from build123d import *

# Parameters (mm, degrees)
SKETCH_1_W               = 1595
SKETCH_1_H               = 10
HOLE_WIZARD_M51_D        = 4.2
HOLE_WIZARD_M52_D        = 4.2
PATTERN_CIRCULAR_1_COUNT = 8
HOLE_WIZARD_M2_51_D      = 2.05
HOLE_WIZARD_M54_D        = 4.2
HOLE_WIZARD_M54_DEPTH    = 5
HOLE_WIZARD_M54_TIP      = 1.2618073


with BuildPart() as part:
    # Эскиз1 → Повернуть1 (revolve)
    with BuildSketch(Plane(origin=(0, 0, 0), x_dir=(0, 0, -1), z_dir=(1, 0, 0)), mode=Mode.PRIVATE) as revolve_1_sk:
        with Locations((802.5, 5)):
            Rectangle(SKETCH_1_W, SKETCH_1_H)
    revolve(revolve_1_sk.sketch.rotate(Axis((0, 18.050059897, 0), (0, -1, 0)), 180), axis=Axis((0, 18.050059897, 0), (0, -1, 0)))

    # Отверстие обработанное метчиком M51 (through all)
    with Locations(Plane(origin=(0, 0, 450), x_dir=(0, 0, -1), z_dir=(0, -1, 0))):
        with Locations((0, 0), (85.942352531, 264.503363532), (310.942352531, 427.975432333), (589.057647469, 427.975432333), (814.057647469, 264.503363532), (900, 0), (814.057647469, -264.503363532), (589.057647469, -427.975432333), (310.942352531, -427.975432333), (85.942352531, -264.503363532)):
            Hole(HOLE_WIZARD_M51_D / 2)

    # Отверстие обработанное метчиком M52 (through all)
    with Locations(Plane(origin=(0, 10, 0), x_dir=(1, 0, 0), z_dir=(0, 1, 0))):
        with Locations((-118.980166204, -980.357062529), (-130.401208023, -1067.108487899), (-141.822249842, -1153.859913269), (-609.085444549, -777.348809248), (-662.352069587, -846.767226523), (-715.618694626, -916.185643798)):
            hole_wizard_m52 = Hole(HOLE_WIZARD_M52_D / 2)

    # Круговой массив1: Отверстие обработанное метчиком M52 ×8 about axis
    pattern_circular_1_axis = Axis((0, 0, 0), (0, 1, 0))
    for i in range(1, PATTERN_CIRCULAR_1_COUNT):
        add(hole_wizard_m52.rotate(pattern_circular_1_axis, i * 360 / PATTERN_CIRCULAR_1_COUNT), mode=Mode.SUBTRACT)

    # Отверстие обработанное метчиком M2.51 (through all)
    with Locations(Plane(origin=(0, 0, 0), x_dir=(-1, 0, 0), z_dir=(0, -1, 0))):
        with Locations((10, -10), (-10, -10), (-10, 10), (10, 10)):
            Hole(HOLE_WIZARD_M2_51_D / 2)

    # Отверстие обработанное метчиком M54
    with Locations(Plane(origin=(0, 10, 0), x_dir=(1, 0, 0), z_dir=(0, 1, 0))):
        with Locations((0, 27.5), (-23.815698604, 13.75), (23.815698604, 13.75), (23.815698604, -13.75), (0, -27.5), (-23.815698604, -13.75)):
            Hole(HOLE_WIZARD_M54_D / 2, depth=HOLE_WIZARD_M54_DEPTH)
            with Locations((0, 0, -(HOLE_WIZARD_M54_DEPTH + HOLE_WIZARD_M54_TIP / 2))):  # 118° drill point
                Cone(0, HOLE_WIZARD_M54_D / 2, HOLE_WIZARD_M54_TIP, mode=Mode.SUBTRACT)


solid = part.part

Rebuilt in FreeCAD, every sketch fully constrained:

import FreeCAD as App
import Part
import Sketcher

V = App.Vector
Q = App.Units.Quantity


def add_polygon(sketch, points):
    """Adds a closed chain of lines whose ends are joined by coincident constraints."""
    first, n = sketch.GeometryCount, len(points)
    for a, b in zip(points, points[1:] + points[:1]):
        sketch.addGeometry(Part.LineSegment(App.Vector(*a, 0), App.Vector(*b, 0)), False)
    for i in range(n):
        sketch.addConstraint(Sketcher.Constraint("Coincident", first + i, 2, first + (i + 1) % n, 1))

doc = App.newDocument("Part")
params = doc.addObject("Spreadsheet::Sheet", "Params")
for row, (alias, value) in enumerate([
    ("sketch1_width", "10 mm"),
    ("sketch1_height", "1595 mm"),
    ("revolution_angle", "360 deg"),
    ("sketch2_diameter", "4.2 mm"),
    ("hole_diameter", "4.2 mm"),
    ("sketch3_diameter", "4.2 mm"),
    ("hole2_diameter", "4.2 mm"),
    ("sketch4_diameter", "2.05 mm"),
    ("hole3_diameter", "2.05 mm"),
    ("sketch5_diameter", "4.2 mm"),
    ("hole4_diameter", "4.2 mm"),
    ("hole4_depth", "5 mm"),
], start=1):
    params.set(f"A{row}", alias)
    params.set(f"B{row}", "=" + value)
    params.setAlias(f"B{row}", alias)

body = doc.addObject("PartDesign::Body", "Body")

sketch1 = doc.addObject("Sketcher::SketchObject", "Sketch")
body.addObject(sketch1)
sketch1.AttachmentSupport = (doc.YZ_Plane, [""])
sketch1.MapMode = "FlatFace"
add_polygon(sketch1, [(10, -5), (0, -5), (0, -1600), (10, -1600)])
sketch1.addConstraint([
    Sketcher.Constraint("Horizontal", 0),
    Sketcher.Constraint("Vertical", 1),
    Sketcher.Constraint("Horizontal", 2),
    Sketcher.Constraint("Vertical", 3),
    Sketcher.Constraint("PointOnObject", 0, 2, -2),
    Sketcher.Constraint("DistanceX", 0, 2, 0, 1, Q("10 mm")),
    Sketcher.Constraint("DistanceY", 1, 2, 1, 1, Q("1595 mm")),
    Sketcher.Constraint("DistanceY", 0, 2, -1, 1, Q("5 mm")),
])
sketch1.setExpression("Constraints[9]", "Params.sketch1_width")
sketch1.setExpression("Constraints[10]", "Params.sketch1_height")
revolution = doc.addObject("PartDesign::Revolution", "Revolution")
body.addObject(revolution)
revolution.Profile = sketch1
revolution.ReferenceAxis = (sketch1, ["H_Axis"])
revolution.setExpression("Angle", "Params.revolution_angle")

sketch2 = doc.addObject("Sketcher::SketchObject", "Sketch001")
body.addObject(sketch2)
sketch2.AttachmentSupport = (doc.XZ_Plane, [""])
sketch2.MapMode = "FlatFace"
sketch2.addGeometry([
    Part.Circle(V(0, 450, 0), V(0, 0, 1), 2.1),
    Part.Circle(V(264.503364, 364.057647, 0), V(0, 0, 1), 2.1),
    Part.Circle(V(427.975432, 139.057647, 0), V(0, 0, 1), 2.1),
    Part.Circle(V(427.975432, -139.057647, 0), V(0, 0, 1), 2.1),
    Part.Circle(V(264.503364, -364.057647, 0), V(0, 0, 1), 2.1),
    Part.Circle(V(0, -450, 0), V(0, 0, 1), 2.1),
    Part.Circle(V(-264.503364, -364.057647, 0), V(0, 0, 1), 2.1),
    Part.Circle(V(-427.975432, -139.057647, 0), V(0, 0, 1), 2.1),
    Part.Circle(V(-427.975432, 139.057647, 0), V(0, 0, 1), 2.1),
    Part.Circle(V(-264.503364, 364.057647, 0), V(0, 0, 1), 2.1),
], False)
sketch2.addConstraint([
    Sketcher.Constraint("Equal", 0, 1),
    Sketcher.Constraint("Equal", 1, 2),
    Sketcher.Constraint("Equal", 2, 3),
    Sketcher.Constraint("Equal", 3, 4),
    Sketcher.Constraint("Equal", 4, 5),
    Sketcher.Constraint("Equal", 5, 6),
    Sketcher.Constraint("Equal", 6, 7),
    Sketcher.Constraint("Equal", 7, 8),
    Sketcher.Constraint("Equal", 8, 9),
    Sketcher.Constraint("Symmetric", 0, 3, 5, 3, -1, 1),
    Sketcher.Constraint("Symmetric", 1, 3, 6, 3, -1, 1),
    Sketcher.Constraint("Symmetric", 2, 3, 7, 3, -1, 1),
    Sketcher.Constraint("Symmetric", 3, 3, 8, 3, -1, 1),
    Sketcher.Constraint("Symmetric", 4, 3, 9, 3, -1, 1),
    Sketcher.Constraint("Symmetric", 4, 3, 6, 3, -2),
    Sketcher.Constraint("Symmetric", 3, 3, 7, 3, -2),
    Sketcher.Constraint("PointOnObject", 0, 3, -2),
    Sketcher.Constraint("Diameter", 0, Q("4.2 mm")),
    Sketcher.Constraint("DistanceY", -1, 1, 0, 3, Q("450 mm")),
    Sketcher.Constraint("DistanceY", 2, 3, 1, 3, Q("225 mm")),
    Sketcher.Constraint("DistanceX", 1, 3, 2, 3, Q("163.472069 mm")),
    Sketcher.Constraint("DistanceX", -1, 1, 1, 3, Q("264.503364 mm")),
    Sketcher.Constraint("DistanceY", -1, 1, 1, 3, Q("364.057647 mm")),
])
sketch2.setExpression("Constraints[17]", "Params.sketch2_diameter")
doc.recompute()
hole = doc.addObject("PartDesign::Hole", "Hole")
body.addObject(hole)
hole.Profile = sketch2
hole.ThreadType = "None"
hole.setExpression("Diameter", "Params.hole_diameter")
hole.DepthType = "ThroughAll"

sketch3 = doc.addObject("Sketcher::SketchObject", "Sketch002")
body.addObject(sketch3)
sketch3.AttachmentSupport = (doc.XZ_Plane, [""])
sketch3.MapMode = "FlatFace"
sketch3.AttachmentOffset = App.Placement(V(0, 0, -10), App.Rotation())
sketch3.addGeometry([
    Part.Circle(V(-118.980166, 980.357063, 0), V(0, 0, 1), 2.1),
    Part.Circle(V(-130.401208, 1067.108488, 0), V(0, 0, 1), 2.1),
    Part.Circle(V(-141.82225, 1153.859913, 0), V(0, 0, 1), 2.1),
    Part.Circle(V(-609.085445, 777.348809, 0), V(0, 0, 1), 2.1),
    Part.Circle(V(-662.35207, 846.767227, 0), V(0, 0, 1), 2.1),
    Part.Circle(V(-715.618695, 916.185644, 0), V(0, 0, 1), 2.1),
], False)
sketch3.addConstraint([
    Sketcher.Constraint("Equal", 0, 1),
    Sketcher.Constraint("Equal", 1, 2),
    Sketcher.Constraint("Equal", 2, 3),
    Sketcher.Constraint("Equal", 3, 4),
    Sketcher.Constraint("Equal", 4, 5),
    Sketcher.Constraint("Diameter", 0, Q("4.2 mm")),
    Sketcher.Constraint("DistanceX", 1, 3, -1, 1, Q("130.401208 mm")),
    Sketcher.Constraint("DistanceX", 2, 3, -1, 1, Q("141.82225 mm")),
    Sketcher.Constraint("DistanceY", -1, 1, 3, 3, Q("777.348809 mm")),
    Sketcher.Constraint("DistanceX", 4, 3, -1, 1, Q("662.35207 mm")),
    Sketcher.Constraint("DistanceX", 1, 3, 0, 3, Q("11.421042 mm")),
    Sketcher.Constraint("DistanceY", 0, 3, 2, 3, Q("173.502851 mm")),
    Sketcher.Constraint("DistanceX", 3, 3, 0, 3, Q("490.105278 mm")),
    Sketcher.Constraint("DistanceY", 3, 3, 1, 3, Q("289.759679 mm")),
    Sketcher.Constraint("DistanceY", 4, 3, 1, 3, Q("220.341261 mm")),
    Sketcher.Constraint("DistanceX", 5, 3, 3, 3, Q("106.53325 mm")),
    Sketcher.Constraint("DistanceY", 5, 3, 0, 3, Q("64.171419 mm")),
    Sketcher.Constraint("DistanceY", -1, 1, 0, 3, Q("980.357063 mm")),
])
sketch3.setExpression("Constraints[5]", "Params.sketch3_diameter")
doc.recompute()
hole2 = doc.addObject("PartDesign::Hole", "Hole001")
body.addObject(hole2)
hole2.Profile = sketch3
hole2.ThreadType = "None"
hole2.setExpression("Diameter", "Params.hole2_diameter")
hole2.DepthType = "ThroughAll"
hole2.Reversed = True
doc.recompute()

polarpattern = doc.addObject("PartDesign::PolarPattern", "PolarPattern")
body.addObject(polarpattern)
polarpattern.Originals = [hole2]
polarpattern.Axis = (doc.Y_Axis, [""])
polarpattern.Angle = 360
polarpattern.Occurrences = 8
body.Tip = polarpattern

sketch4 = doc.addObject("Sketcher::SketchObject", "Sketch003")
body.addObject(sketch4)
sketch4.AttachmentSupport = (doc.XZ_Plane, [""])
sketch4.MapMode = "FlatFace"
sketch4.addGeometry([
    Part.Circle(V(-10, 10, 0), V(0, 0, 1), 1.025),
    Part.Circle(V(10, 10, 0), V(0, 0, 1), 1.025),
    Part.Circle(V(10, -10, 0), V(0, 0, 1), 1.025),
    Part.Circle(V(-10, -10, 0), V(0, 0, 1), 1.025),
], False)
sketch4.addConstraint([
    Sketcher.Constraint("Equal", 0, 1),
    Sketcher.Constraint("Equal", 1, 2),
    Sketcher.Constraint("Equal", 2, 3),
    Sketcher.Constraint("Symmetric", 0, 3, 2, 3, -1, 1),
    Sketcher.Constraint("Symmetric", 1, 3, 3, 3, -1, 1),
    Sketcher.Constraint("Symmetric", 0, 3, 1, 3, -2),
    Sketcher.Constraint("Diameter", 0, Q("2.05 mm")),
    Sketcher.Constraint("DistanceX", 0, 3, -1, 1, Q("10 mm")),
    Sketcher.Constraint("DistanceY", -1, 1, 0, 3, Q("10 mm")),
])
sketch4.setExpression("Constraints[6]", "Params.sketch4_diameter")
doc.recompute()
hole3 = doc.addObject("PartDesign::Hole", "Hole002")
body.addObject(hole3)
hole3.Profile = sketch4
hole3.ThreadType = "None"
hole3.setExpression("Diameter", "Params.hole3_diameter")
hole3.DepthType = "ThroughAll"

sketch5 = doc.addObject("Sketcher::SketchObject", "Sketch004")
body.addObject(sketch5)
sketch5.AttachmentSupport = (doc.XZ_Plane, [""])
sketch5.MapMode = "FlatFace"
sketch5.AttachmentOffset = App.Placement(V(0, 0, -10), App.Rotation())
sketch5.addGeometry([
    Part.Circle(V(0, -27.5, 0), V(0, 0, 1), 2.1),
    Part.Circle(V(-23.815699, -13.75, 0), V(0, 0, 1), 2.1),
    Part.Circle(V(23.815699, -13.75, 0), V(0, 0, 1), 2.1),
    Part.Circle(V(23.815699, 13.75, 0), V(0, 0, 1), 2.1),
    Part.Circle(V(0, 27.5, 0), V(0, 0, 1), 2.1),
    Part.Circle(V(-23.815699, 13.75, 0), V(0, 0, 1), 2.1),
], False)
sketch5.addConstraint([
    Sketcher.Constraint("Equal", 0, 1),
    Sketcher.Constraint("Equal", 1, 2),
    Sketcher.Constraint("Equal", 2, 3),
    Sketcher.Constraint("Equal", 3, 4),
    Sketcher.Constraint("Equal", 4, 5),
    Sketcher.Constraint("Symmetric", 1, 3, 3, 3, -1, 1),
    Sketcher.Constraint("Symmetric", 0, 3, 4, 3, -1, 1),
    Sketcher.Constraint("Symmetric", 2, 3, 5, 3, -1, 1),
    Sketcher.Constraint("Symmetric", 1, 3, 2, 3, -2),
    Sketcher.Constraint("PointOnObject", 0, 3, -2),
    Sketcher.Constraint("Diameter", 0, Q("4.2 mm")),
    Sketcher.Constraint("DistanceY", 0, 3, 4, 3, Q("55 mm")),
    Sketcher.Constraint("DistanceY", 2, 3, 3, 3, Q("27.5 mm")),
    Sketcher.Constraint("DistanceX", 1, 3, -1, 1, Q("23.815699 mm")),
])
sketch5.setExpression("Constraints[10]", "Params.sketch5_diameter")
doc.recompute()
hole4 = doc.addObject("PartDesign::Hole", "Hole003")
body.addObject(hole4)
hole4.Profile = sketch5
hole4.ThreadType = "None"
hole4.setExpression("Diameter", "Params.hole4_diameter")
hole4.DepthType = "Dimension"
hole4.setExpression("Depth", "Params.hole4_depth")
hole4.DrillPoint = "Angled"
hole4.DrillPointAngle = 118
hole4.Reversed = True

doc.recompute()
